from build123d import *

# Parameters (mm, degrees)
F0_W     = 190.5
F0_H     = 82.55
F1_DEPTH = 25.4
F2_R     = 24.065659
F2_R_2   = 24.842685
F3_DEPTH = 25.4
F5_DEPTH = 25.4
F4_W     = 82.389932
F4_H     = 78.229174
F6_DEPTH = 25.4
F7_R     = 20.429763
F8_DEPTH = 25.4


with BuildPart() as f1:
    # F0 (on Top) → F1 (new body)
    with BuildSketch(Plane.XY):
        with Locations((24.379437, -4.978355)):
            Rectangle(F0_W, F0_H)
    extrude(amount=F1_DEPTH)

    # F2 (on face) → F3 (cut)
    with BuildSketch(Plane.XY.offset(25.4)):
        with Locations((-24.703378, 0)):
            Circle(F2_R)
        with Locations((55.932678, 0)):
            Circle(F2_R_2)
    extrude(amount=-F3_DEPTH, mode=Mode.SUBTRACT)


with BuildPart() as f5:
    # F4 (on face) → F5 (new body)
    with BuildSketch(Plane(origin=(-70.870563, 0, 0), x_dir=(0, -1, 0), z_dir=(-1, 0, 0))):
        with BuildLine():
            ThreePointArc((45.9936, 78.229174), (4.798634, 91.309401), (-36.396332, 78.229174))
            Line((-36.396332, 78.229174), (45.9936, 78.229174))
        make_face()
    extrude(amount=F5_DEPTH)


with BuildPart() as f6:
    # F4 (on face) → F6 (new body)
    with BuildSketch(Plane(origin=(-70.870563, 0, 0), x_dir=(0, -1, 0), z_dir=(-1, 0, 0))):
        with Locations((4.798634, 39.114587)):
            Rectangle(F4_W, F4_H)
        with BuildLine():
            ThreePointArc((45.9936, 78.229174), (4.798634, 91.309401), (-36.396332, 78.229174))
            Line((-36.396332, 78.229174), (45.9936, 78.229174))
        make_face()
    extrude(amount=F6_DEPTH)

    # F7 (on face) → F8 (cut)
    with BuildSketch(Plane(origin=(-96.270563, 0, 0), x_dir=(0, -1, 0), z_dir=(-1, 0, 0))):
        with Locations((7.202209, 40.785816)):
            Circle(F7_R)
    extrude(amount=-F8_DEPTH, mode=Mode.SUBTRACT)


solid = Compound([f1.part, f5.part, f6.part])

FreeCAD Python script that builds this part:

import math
import FreeCAD as App
import Part
import Sketcher
from FreeCAD import Vector
Q = App.Units.Quantity

doc = App.newDocument("Part")
body = doc.addObject("PartDesign::Body", "Body")

# Sketch on XY plane
sketch1 = body.newObject("Sketcher::SketchObject", "Sketch")
sketch1.AttachmentSupport = (doc.getObject("XY_Plane"), [""])
sketch1.MapMode = "FlatFace"
sketch1.addGeometry(Part.LineSegment(Vector(-70.870563, 36.296645, 0), Vector(-70.870563, -46.253355, 0)), False)
sketch1.addGeometry(Part.LineSegment(Vector(-70.870563, -46.253355, 0), Vector(119.629437, -46.253355, 0)), False)
sketch1.addGeometry(Part.LineSegment(Vector(119.629437, -46.253355, 0), Vector(119.629437, 36.296645, 0)), False)
sketch1.addGeometry(Part.LineSegment(Vector(119.629437, 36.296645, 0), Vector(-70.870563, 36.296645, 0)), False)
sketch1.addConstraint(Sketcher.Constraint("Coincident", 0, 2, 1, 1))
sketch1.addConstraint(Sketcher.Constraint("Coincident", 1, 2, 2, 1))
sketch1.addConstraint(Sketcher.Constraint("Coincident", 2, 2, 3, 1))
sketch1.addConstraint(Sketcher.Constraint("Coincident", 3, 2, 0, 1))
sketch1.addConstraint(Sketcher.Constraint("Vertical", 0))
sketch1.addConstraint(Sketcher.Constraint("Horizontal", 1))
sketch1.addConstraint(Sketcher.Constraint("Vertical", 2))
sketch1.addConstraint(Sketcher.Constraint("Horizontal", 3))
sketch1.addConstraint(Sketcher.Constraint("DistanceX", 1, 1, 1, 2, Q("7.5 in")))
sketch1.addConstraint(Sketcher.Constraint("DistanceY", 0, 2, 0, 1, Q("3.25 in")))
sketch1.addConstraint(Sketcher.Constraint("DistanceX", 0, 2, -1, 1, 70.870563))
sketch1.addConstraint(Sketcher.Constraint("DistanceY", 0, 2, -1, 1, 46.253355))
pad1 = body.newObject("PartDesign::Pad", "Pad")
pad1.Profile = sketch1
pad1.Length = Q("1 in")

# Sketch on XY plane
sketch2 = body.newObject("Sketcher::SketchObject", "Sketch001")
sketch2.AttachmentSupport = (doc.getObject("XY_Plane"), [""])
sketch2.MapMode = "FlatFace"
sketch2.AttachmentOffset = App.Placement(Vector(0, 0, 1 * 25.4), App.Rotation())
sketch2.addGeometry(Part.Circle(Vector(-24.703378, 0, 0), Vector(0, 0, 1), 24.065659), False)
sketch2.addGeometry(Part.Circle(Vector(55.932678, 0, 0), Vector(0, 0, 1), 24.842685), False)
sketch2.addConstraint(Sketcher.Constraint("PointOnObject", 0, 3, -1))
sketch2.addConstraint(Sketcher.Constraint("PointOnObject", 1, 3, -1))
sketch2.addConstraint(Sketcher.Constraint("Diameter", 1, 49.68537))
sketch2.addConstraint(Sketcher.Constraint("Diameter", 0, 48.131318))
sketch2.addConstraint(Sketcher.Constraint("DistanceX", 0, 3, -1, 1, 24.703378))
sketch2.addConstraint(Sketcher.Constraint("DistanceX", -1, 1, 1, 3, 55.932678))
pocket1 = body.newObject("PartDesign::Pocket", "Pocket")
pocket1.Profile = sketch2
pocket1.Length = Q("1 in")
body2 = doc.addObject("PartDesign::Body", "Body001")

# Sketch on YZ plane
sketch3 = body2.newObject("Sketcher::SketchObject", "Sketch002")
sketch3.AttachmentSupport = (doc.getObject("YZ_Plane001"), [""])
sketch3.MapMode = "FlatFace"
sketch3.AttachmentOffset = App.Placement(Vector(0, 0, -70.870563), App.Rotation())
sketch3.addGeometry(Part.ArcOfCircle(Part.Circle(Vector(-4.798634, 19.899419, 0), Vector(0, 0, 1), 71.409982), math.radians(54.768628), math.radians(125.231372)), False)
sketch3.addGeometry(Part.LineSegment(Vector(36.396332, 78.229174, 0), Vector(-45.9936, 78.229174, 0)), False)
sketch3.addConstraint(Sketcher.Constraint("Coincident", 0, 1, 1, 1))
sketch3.addConstraint(Sketcher.Constraint("Coincident", 1, 2, 0, 2))
sketch3.addConstraint(Sketcher.Constraint("Horizontal", 1))
sketch3.addConstraint(Sketcher.Constraint("Radius", 0, 71.409982))
sketch3.addConstraint(Sketcher.Constraint("DistanceX", 1, 2, 1, 1, 82.389932))
sketch3.addConstraint(Sketcher.Constraint("DistanceX", 1, 2, -1, 1, 45.9936))
sketch3.addConstraint(Sketcher.Constraint("DistanceY", -1, 1, 0, 3, 19.899419))
pad2 = body2.newObject("PartDesign::Pad", "Pad001")
pad2.Profile = sketch3
pad2.Length = Q("1 in")
pad2.Reversed = True
body3 = doc.addObject("PartDesign::Body", "Body002")

# Sketch on YZ plane
sketch4 = body3.newObject("Sketcher::SketchObject", "Sketch003")
sketch4.AttachmentSupport = (doc.getObject("YZ_Plane002"), [""])
sketch4.MapMode = "FlatFace"
sketch4.AttachmentOffset = App.Placement(Vector(0, 0, -70.870563), App.Rotation())
sketch4.addGeometry(Part.LineSegment(Vector(36.396332, 78.229174, 0), Vector(36.396332, 0, 0)), False)
sketch4.addGeometry(Part.LineSegment(Vector(36.396332, 0, 0), Vector(-45.9936, 0, 0)), False)
sketch4.addGeometry(Part.LineSegment(Vector(-45.9936, 0, 0), Vector(-45.9936, 78.229174, 0)), False)
sketch4.addGeometry(Part.ArcOfCircle(Part.Circle(Vector(-4.798634, 19.899419, 0), Vector(0, 0, 1), 71.409982), math.radians(54.768628), math.radians(125.231372)), False)
sketch4.addConstraint(Sketcher.Constraint("Coincident", 0, 2, 1, 1))
sketch4.addConstraint(Sketcher.Constraint("Coincident", 1, 2, 2, 1))
sketch4.addConstraint(Sketcher.Constraint("Coincident", 2, 2, 3, 2))
sketch4.addConstraint(Sketcher.Constraint("Coincident", 3, 1, 0, 1))
sketch4.addConstraint(Sketcher.Constraint("Vertical", 0))
sketch4.addConstraint(Sketcher.Constraint("Horizontal", 1))
sketch4.addConstraint(Sketcher.Constraint("Vertical", 2))
sketch4.addConstraint(Sketcher.Constraint("PointOnObject", 0, 2, -1))
sketch4.addConstraint(Sketcher.Constraint("Horizontal", 2, 2, 3, 1))
sketch4.addConstraint(Sketcher.Constraint("Radius", 3, 71.409982))
sketch4.addConstraint(Sketcher.Constraint("DistanceX", 1, 2, 1, 1, 82.389932))
sketch4.addConstraint(Sketcher.Constraint("DistanceX", 1, 2, -1, 1, 45.9936))
sketch4.addConstraint(Sketcher.Constraint("DistanceY", 0, 2, 0, 1, 78.229174))
pad3 = body3.newObject("PartDesign::Pad", "Pad002")
pad3.Profile = sketch4
pad3.Length = Q("1 in")
pad3.Reversed = True

# Sketch on YZ plane
sketch5 = body3.newObject("Sketcher::SketchObject", "Sketch004")
sketch5.AttachmentSupport = (doc.getObject("YZ_Plane002"), [""])
sketch5.MapMode = "FlatFace"
sketch5.AttachmentOffset = App.Placement(Vector(0, 0, -96.270563), App.Rotation())
sketch5.addGeometry(Part.Circle(Vector(-7.202209, 40.785816, 0), Vector(0, 0, 1), 20.429763), False)
sketch5.addConstraint(Sketcher.Constraint("Diameter", 0, 40.859526))
sketch5.addConstraint(Sketcher.Constraint("DistanceX", 0, 3, -1, 1, 7.202209))
sketch5.addConstraint(Sketcher.Constraint("DistanceY", -1, 1, 0, 3, 40.785816))
pocket2 = body3.newObject("PartDesign::Pocket", "Pocket001")
pocket2.Profile = sketch5
pocket2.Length = Q("1 in")
pocket2.Reversed = True

doc.recompute()
